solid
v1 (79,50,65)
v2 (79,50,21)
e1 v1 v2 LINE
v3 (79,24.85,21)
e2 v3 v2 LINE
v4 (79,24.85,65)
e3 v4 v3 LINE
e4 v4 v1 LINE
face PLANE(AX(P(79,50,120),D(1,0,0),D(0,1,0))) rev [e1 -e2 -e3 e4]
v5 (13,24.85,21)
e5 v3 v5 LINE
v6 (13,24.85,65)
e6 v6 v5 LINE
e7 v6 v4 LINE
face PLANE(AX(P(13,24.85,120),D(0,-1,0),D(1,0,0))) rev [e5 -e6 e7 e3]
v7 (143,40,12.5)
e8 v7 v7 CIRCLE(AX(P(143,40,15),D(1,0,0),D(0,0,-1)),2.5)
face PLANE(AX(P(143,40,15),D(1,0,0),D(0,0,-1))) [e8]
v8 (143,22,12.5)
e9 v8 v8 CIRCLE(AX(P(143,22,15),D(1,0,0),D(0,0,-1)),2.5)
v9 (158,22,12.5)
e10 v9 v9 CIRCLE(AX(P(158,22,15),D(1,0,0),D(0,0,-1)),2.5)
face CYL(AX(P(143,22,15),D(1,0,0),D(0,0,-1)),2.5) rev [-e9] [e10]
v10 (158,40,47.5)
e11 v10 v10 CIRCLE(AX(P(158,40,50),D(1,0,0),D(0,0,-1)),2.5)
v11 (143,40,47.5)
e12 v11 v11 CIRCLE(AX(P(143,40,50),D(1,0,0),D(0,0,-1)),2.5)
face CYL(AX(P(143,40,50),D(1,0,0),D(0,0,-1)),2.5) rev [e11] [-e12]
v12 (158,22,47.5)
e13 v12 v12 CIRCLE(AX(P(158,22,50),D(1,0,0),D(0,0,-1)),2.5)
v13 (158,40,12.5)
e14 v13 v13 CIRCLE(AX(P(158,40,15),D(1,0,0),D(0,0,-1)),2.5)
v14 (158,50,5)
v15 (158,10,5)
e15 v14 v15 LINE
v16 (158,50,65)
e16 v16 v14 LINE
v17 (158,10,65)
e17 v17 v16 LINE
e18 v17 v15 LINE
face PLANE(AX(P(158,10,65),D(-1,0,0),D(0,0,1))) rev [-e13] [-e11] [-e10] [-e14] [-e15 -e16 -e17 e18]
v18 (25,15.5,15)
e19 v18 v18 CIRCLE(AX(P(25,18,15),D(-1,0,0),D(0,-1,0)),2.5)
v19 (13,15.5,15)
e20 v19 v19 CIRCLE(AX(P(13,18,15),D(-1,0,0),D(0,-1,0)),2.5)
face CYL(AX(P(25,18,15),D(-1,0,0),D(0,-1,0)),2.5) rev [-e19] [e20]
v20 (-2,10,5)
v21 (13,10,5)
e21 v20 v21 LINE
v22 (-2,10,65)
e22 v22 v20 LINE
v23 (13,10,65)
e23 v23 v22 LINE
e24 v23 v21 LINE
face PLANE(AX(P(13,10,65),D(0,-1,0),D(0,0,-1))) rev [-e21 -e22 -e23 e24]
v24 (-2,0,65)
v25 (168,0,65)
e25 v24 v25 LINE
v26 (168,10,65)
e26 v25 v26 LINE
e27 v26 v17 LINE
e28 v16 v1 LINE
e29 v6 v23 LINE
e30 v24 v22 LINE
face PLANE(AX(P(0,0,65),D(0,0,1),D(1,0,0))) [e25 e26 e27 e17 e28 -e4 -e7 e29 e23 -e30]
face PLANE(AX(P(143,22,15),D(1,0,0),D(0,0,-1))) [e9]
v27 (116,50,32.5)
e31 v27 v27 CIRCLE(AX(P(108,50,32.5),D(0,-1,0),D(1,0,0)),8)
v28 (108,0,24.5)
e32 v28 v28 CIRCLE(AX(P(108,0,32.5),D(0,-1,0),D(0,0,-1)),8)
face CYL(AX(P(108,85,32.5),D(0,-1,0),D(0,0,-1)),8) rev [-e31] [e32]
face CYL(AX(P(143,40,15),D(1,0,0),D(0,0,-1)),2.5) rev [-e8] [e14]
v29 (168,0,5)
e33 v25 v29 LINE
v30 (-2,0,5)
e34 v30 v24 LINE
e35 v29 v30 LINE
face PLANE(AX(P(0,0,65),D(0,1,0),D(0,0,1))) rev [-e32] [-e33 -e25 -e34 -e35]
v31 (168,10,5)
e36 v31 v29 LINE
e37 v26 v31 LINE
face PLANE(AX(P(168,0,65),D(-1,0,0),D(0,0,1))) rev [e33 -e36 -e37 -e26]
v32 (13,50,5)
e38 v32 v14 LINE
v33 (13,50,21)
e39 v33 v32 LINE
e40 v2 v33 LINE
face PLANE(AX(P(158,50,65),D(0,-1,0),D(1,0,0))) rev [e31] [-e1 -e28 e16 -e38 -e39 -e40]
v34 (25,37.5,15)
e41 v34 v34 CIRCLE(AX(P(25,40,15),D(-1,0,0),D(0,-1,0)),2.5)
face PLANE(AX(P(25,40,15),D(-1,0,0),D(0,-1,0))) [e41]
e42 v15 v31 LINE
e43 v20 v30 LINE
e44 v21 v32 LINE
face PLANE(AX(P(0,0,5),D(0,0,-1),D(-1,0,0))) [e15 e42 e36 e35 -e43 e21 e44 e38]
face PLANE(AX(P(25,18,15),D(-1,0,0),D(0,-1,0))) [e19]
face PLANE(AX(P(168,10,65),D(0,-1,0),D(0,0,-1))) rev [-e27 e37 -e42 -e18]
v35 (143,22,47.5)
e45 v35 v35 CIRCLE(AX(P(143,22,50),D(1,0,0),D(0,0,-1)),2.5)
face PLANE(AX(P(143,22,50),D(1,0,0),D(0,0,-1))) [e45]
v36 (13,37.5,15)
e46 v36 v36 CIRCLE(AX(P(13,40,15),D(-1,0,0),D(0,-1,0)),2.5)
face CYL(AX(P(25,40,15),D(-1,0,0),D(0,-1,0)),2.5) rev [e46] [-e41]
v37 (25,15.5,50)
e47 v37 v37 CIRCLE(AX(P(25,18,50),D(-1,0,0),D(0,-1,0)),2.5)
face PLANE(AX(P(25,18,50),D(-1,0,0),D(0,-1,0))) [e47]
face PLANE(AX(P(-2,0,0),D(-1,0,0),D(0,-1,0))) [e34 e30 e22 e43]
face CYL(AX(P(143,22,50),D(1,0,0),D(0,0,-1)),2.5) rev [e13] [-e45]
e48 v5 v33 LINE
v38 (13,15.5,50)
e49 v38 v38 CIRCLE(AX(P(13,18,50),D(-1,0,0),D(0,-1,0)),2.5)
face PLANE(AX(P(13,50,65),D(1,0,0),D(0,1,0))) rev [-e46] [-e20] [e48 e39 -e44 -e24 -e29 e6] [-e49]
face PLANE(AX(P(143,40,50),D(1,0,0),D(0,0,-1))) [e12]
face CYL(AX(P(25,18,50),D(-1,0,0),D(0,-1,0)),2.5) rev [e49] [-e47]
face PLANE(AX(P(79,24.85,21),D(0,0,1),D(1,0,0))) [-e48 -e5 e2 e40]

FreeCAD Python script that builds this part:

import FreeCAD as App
import Part
import Sketcher
from FreeCAD import Vector
Q = App.Units.Quantity

doc = App.newDocument("Part")
body = doc.addObject("PartDesign::Body", "Body")

sketch1 = doc.addObject("Sketcher::SketchObject", "Sketch")
body.addObject(sketch1)
sketch1.AttachmentSupport = (doc.XY_Plane, [""])
sketch1.MapMode = "FlatFace"
sketch1.addGeometry([
    Part.LineSegment(Vector(0, 0, 0), Vector(168, 0, 0)),
    Part.LineSegment(Vector(168, 0, 0), Vector(168, 10, 0)),
    Part.LineSegment(Vector(168, 10, 0), Vector(158, 10, 0)),
    Part.LineSegment(Vector(158, 10, 0), Vector(158, 50, 0)),
    Part.LineSegment(Vector(158, 50, 0), Vector(13, 50, 0)),
    Part.LineSegment(Vector(13, 50, 0), Vector(13, 10, 0)),
    Part.LineSegment(Vector(13, 10, 0), Vector(0, 10, 0)),
    Part.LineSegment(Vector(0, 10, 0), Vector(0, 0, 0)),
], False)
sketch1.addConstraint([
    Sketcher.Constraint("Coincident", 0, 2, 1, 1),
    Sketcher.Constraint("Coincident", 1, 2, 2, 1),
    Sketcher.Constraint("Coincident", 2, 2, 3, 1),
    Sketcher.Constraint("Coincident", 3, 2, 4, 1),
    Sketcher.Constraint("Coincident", 4, 2, 5, 1),
    Sketcher.Constraint("Coincident", 5, 2, 6, 1),
    Sketcher.Constraint("Coincident", 6, 2, 7, 1),
    Sketcher.Constraint("Coincident", 7, 2, 0, 1),
    Sketcher.Constraint("Horizontal", 0),
    Sketcher.Constraint("Vertical", 1),
    Sketcher.Constraint("Horizontal", 2),
    Sketcher.Constraint("Vertical", 3),
    Sketcher.Constraint("Horizontal", 4),
    Sketcher.Constraint("Vertical", 5),
    Sketcher.Constraint("Horizontal", 6),
    Sketcher.Constraint("Vertical", 7),
    Sketcher.Constraint("Coincident", 7, 2, -1, 1),
    Sketcher.Constraint("Horizontal", 2, 2, 5, 2),
    Sketcher.Constraint("Equal", 2, 1),
    Sketcher.Constraint("DistanceX", 0, 1, 0, 2, Q("168 mm")),
    Sketcher.Constraint("DistanceX", 2, 2, 2, 1, Q("10 mm")),
    Sketcher.Constraint("DistanceX", 4, 2, 4, 1, Q("145 mm")),
    Sketcher.Constraint("DistanceY", 3, 1, 3, 2, Q("40 mm")),
])
pad1 = doc.addObject("PartDesign::Pad", "Pad")
body.addObject(pad1)
pad1.Profile = sketch1
pad1.Length = 65

sketch2 = doc.addObject("Sketcher::SketchObject", "Sketch001")
body.addObject(sketch2)
sketch2.AttachmentSupport = (doc.XZ_Plane, [""])
sketch2.MapMode = "FlatFace"
sketch2.addGeometry(Part.Circle(Vector(108, 32, 0), Vector(0, 0, 1), 8), False)
sketch2.addConstraint([
    Sketcher.Constraint("Diameter", 0, Q("16 mm")),
    Sketcher.Constraint("DistanceX", -1, 1, 0, 3, Q("108 mm")),
    Sketcher.Constraint("DistanceY", -1, 1, 0, 3, Q("32.5 mm")),
])
pocket1 = doc.addObject("PartDesign::Pocket", "Pocket")
body.addObject(pocket1)
pocket1.Profile = sketch2
pocket1.Length = 85

sketch3 = doc.addObject("Sketcher::SketchObject", "Sketch002")
body.addObject(sketch3)
sketch3.AttachmentSupport = (doc.XY_Plane, [""])
sketch3.MapMode = "FlatFace"
sketch3.addGeometry([
    Part.LineSegment(Vector(79, 50, 0), Vector(79, 25, 0)),
    Part.LineSegment(Vector(79, 25, 0), Vector(13, 25, 0)),
    Part.LineSegment(Vector(13, 25, 0), Vector(13, 50, 0)),
    Part.LineSegment(Vector(13, 50, 0), Vector(79, 50, 0)),
], False)
sketch3.addConstraint([
    Sketcher.Constraint("Coincident", 0, 2, 1, 1),
    Sketcher.Constraint("Coincident", 1, 2, 2, 1),
    Sketcher.Constraint("Coincident", 2, 2, 3, 1),
    Sketcher.Constraint("Coincident", 3, 2, 0, 1),
    Sketcher.Constraint("Vertical", 0),
    Sketcher.Constraint("Horizontal", 1),
    Sketcher.Constraint("Vertical", 2),
    Sketcher.Constraint("Horizontal", 3),
    Sketcher.Constraint("DistanceX", 1, 2, 1, 1, Q("66 mm")),
    Sketcher.Constraint("DistanceX", -1, 1, 0, 2, Q("79 mm")),
    Sketcher.Constraint("DistanceY", -1, 1, 2, 2, Q("50 mm")),
    Sketcher.Constraint("DistanceY", 0, 2, 0, 1, Q("25.15 mm")),
])
pocket2 = doc.addObject("PartDesign::Pocket", "Pocket001")
body.addObject(pocket2)
pocket2.Profile = sketch3
pocket2.Length = 120
pocket2.Reversed = True

sketch4 = doc.addObject("Sketcher::SketchObject", "Sketch003")
body.addObject(sketch4)
sketch4.AttachmentSupport = (doc.YZ_Plane, [""])
sketch4.MapMode = "FlatFace"
sketch4.AttachmentOffset = App.Placement(Vector(0, 0, 158), App.Rotation())
sketch4.addGeometry([
    Part.Circle(Vector(40, 50, 0), Vector(0, 0, 1), 2.5),
    Part.Circle(Vector(22, 50, 0), Vector(0, 0, 1), 2.5),
    Part.Circle(Vector(22, 15, 0), Vector(0, 0, 1), 2.5),
    Part.Circle(Vector(40, 15, 0), Vector(0, 0, 1), 2.5),
], False)
sketch4.addConstraint([
    Sketcher.Constraint("Equal", 0, 1),
    Sketcher.Constraint("Equal", 1, 2),
    Sketcher.Constraint("Equal", 2, 3),
    Sketcher.Constraint("Horizontal", 0, 3, 1, 3),
    Sketcher.Constraint("Horizontal", 2, 3, 3, 3),
    Sketcher.Constraint("Vertical", 1, 3, 2, 3),
    Sketcher.Constraint("Vertical", 0, 3, 3, 3),
    Sketcher.Constraint("Diameter", 0, Q("5 mm")),
    Sketcher.Constraint("DistanceX", -1, 1, 0, 3, Q("40 mm")),
    Sketcher.Constraint("DistanceY", -1, 1, 0, 3, Q("50 mm")),
    Sketcher.Constraint("DistanceX", -1, 1, 1, 3, Q("22 mm")),
    Sketcher.Constraint("DistanceY", -1, 1, 2, 3, Q("15 mm")),
])
pocket3 = doc.addObject("PartDesign::Pocket", "Pocket002")
body.addObject(pocket3)
pocket3.Profile = sketch4
pocket3.Length = 15

sketch5 = doc.addObject("Sketcher::SketchObject", "Sketch004")
body.addObject(sketch5)
sketch5.AttachmentSupport = (doc.YZ_Plane, [""])
sketch5.MapMode = "FlatFace"
sketch5.AttachmentOffset = App.Placement(Vector(0, 0, 13), App.Rotation())
sketch5.addGeometry([
    Part.Circle(Vector(18, 15, 0), Vector(0, 0, 1), 2.5),
    Part.Circle(Vector(18, 50, 0), Vector(0, 0, 1), 2.5),
], False)
sketch5.addConstraint([
    Sketcher.Constraint("Equal", 0, 1),
    Sketcher.Constraint("Vertical", 0, 3, 1, 3),
    Sketcher.Constraint("Diameter", 0, Q("5 mm")),
    Sketcher.Constraint("DistanceX", -1, 1, 0, 3, Q("18 mm")),
    Sketcher.Constraint("DistanceY", -1, 1, 0, 3, Q("15 mm")),
    Sketcher.Constraint("DistanceY", -1, 1, 1, 3, Q("50 mm")),
])
pocket4 = doc.addObject("PartDesign::Pocket", "Pocket003")
body.addObject(pocket4)
pocket4.Profile = sketch5
pocket4.Length = 12
pocket4.Reversed = True

sketch6 = doc.addObject("Sketcher::SketchObject", "Sketch005")
body.addObject(sketch6)
sketch6.AttachmentSupport = (doc.YZ_Plane, [""])
sketch6.MapMode = "FlatFace"
sketch6.AttachmentOffset = App.Placement(Vector(0, 0, 13), App.Rotation())
sketch6.addGeometry([
    Part.LineSegment(Vector(50, 0, 0), Vector(25, 0, 0)),
    Part.LineSegment(Vector(25, 0, 0), Vector(25, 21, 0)),
    Part.LineSegment(Vector(25, 21, 0), Vector(50, 21, 0)),
    Part.LineSegment(Vector(50, 21, 0), Vector(50, 0, 0)),
], False)
sketch6.addConstraint([
    Sketcher.Constraint("Coincident", 0, 2, 1, 1),
    Sketcher.Constraint("Coincident", 1, 2, 2, 1),
    Sketcher.Constraint("Coincident", 2, 2, 3, 1),
    Sketcher.Constraint("Coincident", 3, 2, 0, 1),
    Sketcher.Constraint("Horizontal", 0),
    Sketcher.Constraint("Vertical", 1),
    Sketcher.Constraint("Horizontal", 2),
    Sketcher.Constraint("Vertical", 3),
    Sketcher.Constraint("PointOnObject", 0, 2, -1),
    Sketcher.Constraint("DistanceY", 1, 1, 1, 2, Q("21 mm")),
    Sketcher.Constraint("DistanceX", -1, 1, 2, 2, Q("50 mm")),
    Sketcher.Constraint("DistanceX", 0, 2, 0, 1, Q("25.15 mm")),
])
pad2 = doc.addObject("PartDesign::Pad", "Pad001")
body.addObject(pad2)
pad2.Profile = sketch6
pad2.Length = 66

sketch7 = doc.addObject("Sketcher::SketchObject", "Sketch006")
body.addObject(sketch7)
sketch7.AttachmentSupport = (doc.YZ_Plane, [""])
sketch7.MapMode = "FlatFace"
sketch7.AttachmentOffset = App.Placement(Vector(0, 0, 13), App.Rotation())
sketch7.addGeometry(Part.Circle(Vector(40, 15, 0), Vector(0, 0, 1), 2.5), False)
sketch7.addConstraint([
    Sketcher.Constraint("Diameter", 0, Q("5 mm")),
    Sketcher.Constraint("DistanceX", -1, 1, 0, 3, Q("40 mm")),
    Sketcher.Constraint("DistanceY", -1, 1, 0, 3, Q("15 mm")),
])
pocket5 = doc.addObject("PartDesign::Pocket", "Pocket004")
body.addObject(pocket5)
pocket5.Profile = sketch7
pocket5.Length = 12
pocket5.Reversed = True

sketch8 = doc.addObject("Sketcher::SketchObject", "Sketch007")
body.addObject(sketch8)
sketch8.AttachmentSupport = (doc.XY_Plane, [""])
sketch8.MapMode = "FlatFace"
sketch8.addGeometry([
    Part.LineSegment(Vector(0, 0, 0), Vector(0, 10, 0)),
    Part.LineSegment(Vector(0, 10, 0), Vector(13, 10, 0)),
    Part.LineSegment(Vector(13, 10, 0), Vector(13, 50, 0)),
    Part.LineSegment(Vector(13, 50, 0), Vector(158, 50, 0)),
    Part.LineSegment(Vector(158, 50, 0), Vector(158, 10, 0)),
    Part.LineSegment(Vector(158, 10, 0), Vector(168, 10, 0)),
    Part.LineSegment(Vector(168, 10, 0), Vector(168, 0, 0)),
    Part.LineSegment(Vector(168, 0, 0), Vector(0, 0, 0)),
], False)
sketch8.addConstraint([
    Sketcher.Constraint("Coincident", 0, 2, 1, 1),
    Sketcher.Constraint("Coincident", 1, 2, 2, 1),
    Sketcher.Constraint("Coincident", 2, 2, 3, 1),
    Sketcher.Constraint("Coincident", 3, 2, 4, 1),
    Sketcher.Constraint("Coincident", 4, 2, 5, 1),
    Sketcher.Constraint("Coincident", 5, 2, 6, 1),
    Sketcher.Constraint("Coincident", 6, 2, 7, 1),
    Sketcher.Constraint("Coincident", 7, 2, 0, 1),
    Sketcher.Constraint("Vertical", 0),
    Sketcher.Constraint("Horizontal", 1),
    Sketcher.Constraint("Vertical", 2),
    Sketcher.Constraint("Horizontal", 3),
    Sketcher.Constraint("Vertical", 4),
    Sketcher.Constraint("Horizontal", 5),
    Sketcher.Constraint("Vertical", 6),
    Sketcher.Constraint("Horizontal", 7),
    Sketcher.Constraint("Coincident", 7, 2, -1, 1),
    Sketcher.Constraint("Horizontal", 1, 2, 4, 2),
    Sketcher.Constraint("Equal", 5, 0),
    Sketcher.Constraint("DistanceX", 1, 1, 1, 2, Q("13 mm")),
    Sketcher.Constraint("DistanceX", 3, 1, 3, 2, Q("145 mm")),
    Sketcher.Constraint("DistanceX", 5, 1, 5, 2, Q("10 mm")),
    Sketcher.Constraint("DistanceY", 2, 1, 2, 2, Q("40 mm")),
])
pocket6 = doc.addObject("PartDesign::Pocket", "Pocket005")
body.addObject(pocket6)
pocket6.Profile = sketch8
pocket6.Length = 5
pocket6.Reversed = True

sketch9 = doc.addObject("Sketcher::SketchObject", "Sketch008")
body.addObject(sketch9)
sketch9.AttachmentSupport = (doc.YZ_Plane, [""])
sketch9.MapMode = "FlatFace"
sketch9.addGeometry([
    Part.LineSegment(Vector(10, 5, 0), Vector(0, 5, 0)),
    Part.LineSegment(Vector(0, 5, 0), Vector(0, 65, 0)),
    Part.LineSegment(Vector(0, 65, 0), Vector(10, 65, 0)),
    Part.LineSegment(Vector(10, 65, 0), Vector(10, 5, 0)),
], False)
sketch9.addConstraint([
    Sketcher.Constraint("Coincident", 0, 2, 1, 1),
    Sketcher.Constraint("Coincident", 1, 2, 2, 1),
    Sketcher.Constraint("Coincident", 2, 2, 3, 1),
    Sketcher.Constraint("Coincident", 3, 2, 0, 1),
    Sketcher.Constraint("Horizontal", 0),
    Sketcher.Constraint("Vertical", 1),
    Sketcher.Constraint("Horizontal", 2),
    Sketcher.Constraint("Vertical", 3),
    Sketcher.Constraint("PointOnObject", 0, 2, -2),
    Sketcher.Constraint("DistanceX", 0, 2, 0, 1, Q("10 mm")),
    Sketcher.Constraint("DistanceY", 1, 1, 1, 2, Q("60 mm")),
    Sketcher.Constraint("DistanceY", -1, 1, 0, 2, Q("5 mm")),
])
pad3 = doc.addObject("PartDesign::Pad", "Pad002")
body.addObject(pad3)
pad3.Profile = sketch9
pad3.Length = 2
pad3.Reversed = True

doc.recompute()
